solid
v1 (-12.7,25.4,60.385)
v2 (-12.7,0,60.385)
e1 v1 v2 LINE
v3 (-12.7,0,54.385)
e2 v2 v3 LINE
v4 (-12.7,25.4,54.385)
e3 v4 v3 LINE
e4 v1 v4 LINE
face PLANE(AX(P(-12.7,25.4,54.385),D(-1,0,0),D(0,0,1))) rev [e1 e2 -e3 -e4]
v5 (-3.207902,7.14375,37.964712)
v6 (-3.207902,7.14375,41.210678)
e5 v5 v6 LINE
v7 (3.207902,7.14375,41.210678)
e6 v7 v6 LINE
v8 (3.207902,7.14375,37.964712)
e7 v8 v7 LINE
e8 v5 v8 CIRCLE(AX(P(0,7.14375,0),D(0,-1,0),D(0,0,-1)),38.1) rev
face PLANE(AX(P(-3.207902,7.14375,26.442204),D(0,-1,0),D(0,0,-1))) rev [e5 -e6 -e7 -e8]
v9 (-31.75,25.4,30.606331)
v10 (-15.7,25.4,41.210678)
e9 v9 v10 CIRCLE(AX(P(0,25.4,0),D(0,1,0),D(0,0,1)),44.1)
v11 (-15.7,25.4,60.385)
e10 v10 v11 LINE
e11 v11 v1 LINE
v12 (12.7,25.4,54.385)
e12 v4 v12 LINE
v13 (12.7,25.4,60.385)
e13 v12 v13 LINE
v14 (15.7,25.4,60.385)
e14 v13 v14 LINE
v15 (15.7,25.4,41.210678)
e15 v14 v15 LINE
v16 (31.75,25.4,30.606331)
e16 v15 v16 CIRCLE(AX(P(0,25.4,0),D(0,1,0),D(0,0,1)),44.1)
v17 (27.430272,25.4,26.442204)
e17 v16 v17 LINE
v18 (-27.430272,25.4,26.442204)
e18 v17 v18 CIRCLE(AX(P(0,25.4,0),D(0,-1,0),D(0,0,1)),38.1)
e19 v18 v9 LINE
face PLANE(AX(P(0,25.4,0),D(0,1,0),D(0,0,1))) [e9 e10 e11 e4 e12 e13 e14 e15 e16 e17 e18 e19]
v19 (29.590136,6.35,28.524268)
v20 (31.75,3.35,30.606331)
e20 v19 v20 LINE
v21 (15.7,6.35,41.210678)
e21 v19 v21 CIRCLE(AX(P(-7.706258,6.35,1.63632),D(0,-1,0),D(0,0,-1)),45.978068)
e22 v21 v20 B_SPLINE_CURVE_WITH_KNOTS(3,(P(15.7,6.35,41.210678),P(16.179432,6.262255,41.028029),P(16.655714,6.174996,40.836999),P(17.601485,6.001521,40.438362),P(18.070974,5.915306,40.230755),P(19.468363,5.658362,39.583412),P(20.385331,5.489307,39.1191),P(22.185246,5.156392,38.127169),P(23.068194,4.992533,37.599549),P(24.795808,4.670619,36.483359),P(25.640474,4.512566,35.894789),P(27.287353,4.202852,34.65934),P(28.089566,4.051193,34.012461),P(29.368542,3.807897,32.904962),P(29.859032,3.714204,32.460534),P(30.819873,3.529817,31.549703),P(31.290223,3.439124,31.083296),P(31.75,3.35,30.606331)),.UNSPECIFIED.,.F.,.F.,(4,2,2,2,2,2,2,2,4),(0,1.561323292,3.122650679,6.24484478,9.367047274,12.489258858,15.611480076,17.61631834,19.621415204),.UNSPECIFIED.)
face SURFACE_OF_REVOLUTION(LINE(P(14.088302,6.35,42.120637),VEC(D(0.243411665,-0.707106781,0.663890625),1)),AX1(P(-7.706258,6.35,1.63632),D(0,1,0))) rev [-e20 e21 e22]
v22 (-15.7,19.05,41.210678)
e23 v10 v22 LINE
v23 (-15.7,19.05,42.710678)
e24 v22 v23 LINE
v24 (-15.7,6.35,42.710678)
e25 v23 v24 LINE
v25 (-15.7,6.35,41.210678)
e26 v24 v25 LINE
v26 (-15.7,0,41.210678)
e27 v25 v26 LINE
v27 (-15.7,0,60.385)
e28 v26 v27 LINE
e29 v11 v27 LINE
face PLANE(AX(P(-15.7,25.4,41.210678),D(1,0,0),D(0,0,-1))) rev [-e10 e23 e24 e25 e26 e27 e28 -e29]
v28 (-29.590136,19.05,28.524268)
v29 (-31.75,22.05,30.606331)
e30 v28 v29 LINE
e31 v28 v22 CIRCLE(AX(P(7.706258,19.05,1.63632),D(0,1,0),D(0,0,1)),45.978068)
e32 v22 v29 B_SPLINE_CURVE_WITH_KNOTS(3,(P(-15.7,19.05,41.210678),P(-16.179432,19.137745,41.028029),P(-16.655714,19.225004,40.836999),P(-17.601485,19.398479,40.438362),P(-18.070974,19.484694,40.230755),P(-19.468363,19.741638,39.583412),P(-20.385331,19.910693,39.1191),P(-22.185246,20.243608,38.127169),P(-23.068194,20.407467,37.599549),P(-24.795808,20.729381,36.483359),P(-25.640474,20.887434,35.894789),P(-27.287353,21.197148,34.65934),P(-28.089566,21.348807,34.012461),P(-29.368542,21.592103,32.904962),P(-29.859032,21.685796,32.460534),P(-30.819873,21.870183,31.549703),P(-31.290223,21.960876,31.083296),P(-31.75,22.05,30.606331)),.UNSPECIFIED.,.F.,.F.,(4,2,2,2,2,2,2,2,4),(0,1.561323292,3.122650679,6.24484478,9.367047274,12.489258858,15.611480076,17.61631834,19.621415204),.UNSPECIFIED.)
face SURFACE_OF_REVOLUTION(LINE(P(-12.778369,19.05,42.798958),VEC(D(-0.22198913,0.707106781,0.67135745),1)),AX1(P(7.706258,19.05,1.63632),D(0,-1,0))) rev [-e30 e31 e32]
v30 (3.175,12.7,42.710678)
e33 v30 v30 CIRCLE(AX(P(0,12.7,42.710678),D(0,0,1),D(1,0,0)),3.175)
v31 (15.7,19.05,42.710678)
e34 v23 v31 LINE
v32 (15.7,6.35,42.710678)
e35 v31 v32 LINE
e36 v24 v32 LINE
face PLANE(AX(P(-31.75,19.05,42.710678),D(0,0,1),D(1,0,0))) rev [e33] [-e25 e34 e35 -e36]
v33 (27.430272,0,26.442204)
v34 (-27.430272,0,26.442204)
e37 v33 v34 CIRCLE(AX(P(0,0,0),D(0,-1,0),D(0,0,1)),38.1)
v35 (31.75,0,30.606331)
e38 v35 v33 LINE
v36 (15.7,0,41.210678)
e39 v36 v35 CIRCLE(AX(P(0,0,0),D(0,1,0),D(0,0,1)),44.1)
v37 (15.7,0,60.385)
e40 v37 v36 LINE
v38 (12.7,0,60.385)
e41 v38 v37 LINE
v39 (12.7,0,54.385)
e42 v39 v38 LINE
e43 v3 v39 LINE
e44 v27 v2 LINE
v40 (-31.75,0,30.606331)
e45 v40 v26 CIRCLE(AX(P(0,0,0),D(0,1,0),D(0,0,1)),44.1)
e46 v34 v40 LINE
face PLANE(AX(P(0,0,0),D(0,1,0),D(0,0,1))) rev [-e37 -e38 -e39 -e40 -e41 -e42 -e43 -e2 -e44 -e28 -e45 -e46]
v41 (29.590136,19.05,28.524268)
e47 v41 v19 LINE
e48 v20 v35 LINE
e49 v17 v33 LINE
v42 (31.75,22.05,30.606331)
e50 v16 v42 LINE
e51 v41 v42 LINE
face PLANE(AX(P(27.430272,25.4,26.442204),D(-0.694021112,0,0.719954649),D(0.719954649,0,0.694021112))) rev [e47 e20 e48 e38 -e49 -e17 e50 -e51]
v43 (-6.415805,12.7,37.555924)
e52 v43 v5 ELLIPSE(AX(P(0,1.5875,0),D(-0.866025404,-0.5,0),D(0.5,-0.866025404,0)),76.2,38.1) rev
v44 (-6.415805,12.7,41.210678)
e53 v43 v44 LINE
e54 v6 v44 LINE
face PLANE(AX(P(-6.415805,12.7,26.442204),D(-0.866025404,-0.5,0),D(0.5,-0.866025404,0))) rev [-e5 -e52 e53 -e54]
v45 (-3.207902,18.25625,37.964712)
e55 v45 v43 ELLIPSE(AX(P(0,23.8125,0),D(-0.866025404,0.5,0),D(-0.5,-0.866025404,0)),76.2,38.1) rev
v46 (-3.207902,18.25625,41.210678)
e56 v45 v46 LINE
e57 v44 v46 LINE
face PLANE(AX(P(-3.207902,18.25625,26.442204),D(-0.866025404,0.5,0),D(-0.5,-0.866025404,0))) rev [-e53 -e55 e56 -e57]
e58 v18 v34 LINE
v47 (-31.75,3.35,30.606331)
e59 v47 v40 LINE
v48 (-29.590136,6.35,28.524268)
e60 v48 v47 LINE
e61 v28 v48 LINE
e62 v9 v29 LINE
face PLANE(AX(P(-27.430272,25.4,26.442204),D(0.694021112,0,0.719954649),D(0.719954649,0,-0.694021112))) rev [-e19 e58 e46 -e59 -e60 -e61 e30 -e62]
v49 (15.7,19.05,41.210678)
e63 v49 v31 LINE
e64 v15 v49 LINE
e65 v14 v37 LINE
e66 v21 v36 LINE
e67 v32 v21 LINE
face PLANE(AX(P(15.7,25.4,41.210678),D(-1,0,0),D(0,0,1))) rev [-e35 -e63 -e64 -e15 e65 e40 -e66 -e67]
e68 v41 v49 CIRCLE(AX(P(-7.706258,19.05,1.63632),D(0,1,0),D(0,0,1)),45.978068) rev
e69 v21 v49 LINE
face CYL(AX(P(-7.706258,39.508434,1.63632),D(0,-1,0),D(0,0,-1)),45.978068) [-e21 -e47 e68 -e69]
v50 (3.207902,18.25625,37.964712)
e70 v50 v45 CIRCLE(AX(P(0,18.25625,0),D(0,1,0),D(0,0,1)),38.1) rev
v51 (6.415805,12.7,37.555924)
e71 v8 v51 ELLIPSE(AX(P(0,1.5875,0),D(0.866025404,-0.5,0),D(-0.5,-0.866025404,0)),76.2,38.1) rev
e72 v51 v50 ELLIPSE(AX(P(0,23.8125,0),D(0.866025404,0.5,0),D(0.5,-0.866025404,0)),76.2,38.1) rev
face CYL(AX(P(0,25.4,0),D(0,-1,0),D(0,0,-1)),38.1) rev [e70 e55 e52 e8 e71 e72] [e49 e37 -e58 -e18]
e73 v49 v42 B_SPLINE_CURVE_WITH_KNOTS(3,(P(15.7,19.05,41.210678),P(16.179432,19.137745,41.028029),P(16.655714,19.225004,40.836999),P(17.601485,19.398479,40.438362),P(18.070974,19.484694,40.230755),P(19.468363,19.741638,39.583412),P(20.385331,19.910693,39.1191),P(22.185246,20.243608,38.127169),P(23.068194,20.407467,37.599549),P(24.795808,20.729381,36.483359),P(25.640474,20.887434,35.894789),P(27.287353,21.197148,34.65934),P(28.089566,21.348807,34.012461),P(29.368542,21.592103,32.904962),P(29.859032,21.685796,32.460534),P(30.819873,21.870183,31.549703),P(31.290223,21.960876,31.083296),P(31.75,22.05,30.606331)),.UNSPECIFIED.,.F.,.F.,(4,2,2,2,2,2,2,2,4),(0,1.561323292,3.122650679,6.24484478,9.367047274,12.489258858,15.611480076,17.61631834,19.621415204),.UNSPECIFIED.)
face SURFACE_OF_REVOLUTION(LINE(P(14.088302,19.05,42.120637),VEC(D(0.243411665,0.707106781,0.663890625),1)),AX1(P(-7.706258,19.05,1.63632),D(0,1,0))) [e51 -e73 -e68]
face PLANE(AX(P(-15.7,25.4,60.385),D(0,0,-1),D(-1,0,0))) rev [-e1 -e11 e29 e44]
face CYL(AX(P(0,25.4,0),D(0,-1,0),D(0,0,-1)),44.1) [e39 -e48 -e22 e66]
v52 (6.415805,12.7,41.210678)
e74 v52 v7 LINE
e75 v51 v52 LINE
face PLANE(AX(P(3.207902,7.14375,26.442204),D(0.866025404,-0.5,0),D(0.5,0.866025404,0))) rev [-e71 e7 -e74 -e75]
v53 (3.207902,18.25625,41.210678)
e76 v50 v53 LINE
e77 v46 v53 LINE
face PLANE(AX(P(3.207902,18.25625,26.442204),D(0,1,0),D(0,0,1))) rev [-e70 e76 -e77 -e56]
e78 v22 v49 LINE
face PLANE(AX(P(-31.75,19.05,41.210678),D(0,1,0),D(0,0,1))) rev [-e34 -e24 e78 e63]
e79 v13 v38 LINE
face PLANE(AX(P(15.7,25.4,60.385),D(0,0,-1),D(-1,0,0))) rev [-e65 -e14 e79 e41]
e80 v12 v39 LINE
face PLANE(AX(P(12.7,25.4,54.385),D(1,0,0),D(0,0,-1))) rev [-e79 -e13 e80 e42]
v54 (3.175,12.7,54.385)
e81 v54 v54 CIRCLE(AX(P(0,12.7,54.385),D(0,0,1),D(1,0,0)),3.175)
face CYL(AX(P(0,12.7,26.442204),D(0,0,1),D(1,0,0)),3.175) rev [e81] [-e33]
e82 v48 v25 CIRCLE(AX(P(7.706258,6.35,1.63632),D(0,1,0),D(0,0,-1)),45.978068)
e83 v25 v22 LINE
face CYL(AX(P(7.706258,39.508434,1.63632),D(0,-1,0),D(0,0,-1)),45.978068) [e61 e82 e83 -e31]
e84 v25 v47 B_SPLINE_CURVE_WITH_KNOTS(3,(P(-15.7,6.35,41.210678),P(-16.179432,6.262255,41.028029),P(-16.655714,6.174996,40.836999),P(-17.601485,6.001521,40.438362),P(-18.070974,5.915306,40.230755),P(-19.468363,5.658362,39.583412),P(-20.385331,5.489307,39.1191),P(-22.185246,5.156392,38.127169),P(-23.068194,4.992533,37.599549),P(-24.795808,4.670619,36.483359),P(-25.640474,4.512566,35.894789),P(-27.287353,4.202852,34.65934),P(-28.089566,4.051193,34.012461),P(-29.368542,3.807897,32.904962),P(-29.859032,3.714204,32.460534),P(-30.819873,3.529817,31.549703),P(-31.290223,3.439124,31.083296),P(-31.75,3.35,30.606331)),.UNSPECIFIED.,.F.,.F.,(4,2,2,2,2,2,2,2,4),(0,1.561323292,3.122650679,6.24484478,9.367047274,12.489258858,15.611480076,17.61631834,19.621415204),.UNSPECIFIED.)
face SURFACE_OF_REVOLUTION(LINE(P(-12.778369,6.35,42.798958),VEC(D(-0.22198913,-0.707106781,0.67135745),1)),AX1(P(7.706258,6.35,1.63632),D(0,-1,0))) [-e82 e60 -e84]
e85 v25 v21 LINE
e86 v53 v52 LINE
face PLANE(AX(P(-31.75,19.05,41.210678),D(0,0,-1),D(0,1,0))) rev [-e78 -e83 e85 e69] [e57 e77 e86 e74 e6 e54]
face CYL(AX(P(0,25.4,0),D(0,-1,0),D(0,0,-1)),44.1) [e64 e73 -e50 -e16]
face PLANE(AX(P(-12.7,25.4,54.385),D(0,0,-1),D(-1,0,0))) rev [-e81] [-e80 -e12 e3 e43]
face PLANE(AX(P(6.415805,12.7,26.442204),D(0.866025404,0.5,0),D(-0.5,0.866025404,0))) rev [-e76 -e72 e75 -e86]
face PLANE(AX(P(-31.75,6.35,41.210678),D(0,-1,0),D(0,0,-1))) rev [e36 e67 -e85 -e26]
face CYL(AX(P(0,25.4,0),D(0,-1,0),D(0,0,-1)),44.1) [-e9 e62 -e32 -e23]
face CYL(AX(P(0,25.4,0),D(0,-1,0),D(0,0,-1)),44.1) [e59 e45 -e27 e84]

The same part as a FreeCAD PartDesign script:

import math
import FreeCAD as App
import Part
import Sketcher

V = App.Vector
Q = App.Units.Quantity

doc = App.newDocument("Part")
body = doc.addObject("PartDesign::Body", "Body")

# Sketch on XZ plane
sketch1 = doc.addObject("Sketcher::SketchObject", "Sketch")
body.addObject(sketch1)
sketch1.AttachmentSupport = (doc.XZ_Plane, [""])
sketch1.MapMode = "FlatFace"
sketch1.addGeometry([
    Part.LineSegment(V(-12.7, 54.4, 0), V(12.7, 54.4, 0)),  # 0
    Part.LineSegment(V(12.7, 54.4, 0), V(12.7, 60.4, 0)),  # 1
    Part.LineSegment(V(12.7, 60.4, 0), V(15.7, 60.4, 0)),  # 2
    Part.LineSegment(V(15.7, 60.4, 0), V(15.7, 41.2, 0)),  # 3
    Part.ArcOfCircle(Part.Circle(V(0, 0, 0), V(0, 0, 1), 44.1), math.radians(44), math.radians(69)),  # 4
    Part.LineSegment(V(31.8, 30.6, 0), V(27.4, 26.4, 0)),  # 5
    Part.ArcOfCircle(Part.Circle(V(0, 0, 0), V(0, 0, 1), 38.1), math.radians(44), math.radians(136)),  # 6
    Part.LineSegment(V(-27.4, 26.4, 0), V(-31.8, 30.6, 0)),  # 7
    Part.ArcOfCircle(Part.Circle(V(0, 0, 0), V(0, 0, 1), 44.1), math.radians(111), math.radians(136)),  # 8
    Part.LineSegment(V(-15.7, 41.2, 0), V(-15.7, 60.4, 0)),  # 9
    Part.LineSegment(V(-15.7, 60.4, 0), V(-12.7, 60.4, 0)),  # 10
    Part.LineSegment(V(-12.7, 60.4, 0), V(-12.7, 54.4, 0)),  # 11
], False)
sketch1.addConstraint([
    Sketcher.Constraint("Coincident", 0, 2, 1, 1),
    Sketcher.Constraint("Coincident", 1, 2, 2, 1),
    Sketcher.Constraint("Coincident", 2, 2, 3, 1),
    Sketcher.Constraint("Coincident", 3, 2, 4, 2),
    Sketcher.Constraint("Coincident", 4, 1, 5, 1),
    Sketcher.Constraint("Coincident", 5, 2, 6, 1),
    Sketcher.Constraint("Coincident", 6, 2, 7, 1),
    Sketcher.Constraint("Coincident", 7, 2, 8, 2),
    Sketcher.Constraint("Coincident", 8, 1, 9, 1),
    Sketcher.Constraint("Coincident", 9, 2, 10, 1),
    Sketcher.Constraint("Coincident", 10, 2, 11, 1),
    Sketcher.Constraint("Coincident", 11, 2, 0, 1),
    Sketcher.Constraint("Horizontal", 0),
    Sketcher.Constraint("Vertical", 1),
    Sketcher.Constraint("Horizontal", 2),
    Sketcher.Constraint("Vertical", 3),
    Sketcher.Constraint("Vertical", 9),
    Sketcher.Constraint("Horizontal", 10),
    Sketcher.Constraint("Vertical", 11),
    Sketcher.Constraint("Coincident", 4, 3, -1, 1),
    Sketcher.Constraint("Coincident", 6, 3, -1, 1),
    Sketcher.Constraint("Coincident", 8, 3, -1, 1),
    Sketcher.Constraint("Equal", 4, 8),
    Sketcher.Constraint("Symmetric", 2, 2, 9, 2, -2),
    Sketcher.Constraint("Horizontal", 5, 2, 6, 2),
    Sketcher.Constraint("Horizontal", 4, 1, 7, 2),
    Sketcher.Constraint("Equal", 2, 10),
    Sketcher.Constraint("Radius", 6, Q("1.5 in")),
    Sketcher.Constraint("DistanceX", 0, 1, 0, 2, Q("1 in")),
    Sketcher.Constraint("DistanceX", -1, 1, 4, 1, Q("1.25 in")),
    Sketcher.Constraint("Radius", 4, Q("44.1 mm")),
    Sketcher.Constraint("DistanceX", 2, 1, 2, 2, Q("3 mm")),
    Sketcher.Constraint("DistanceY", 1, 1, 1, 2, Q("6 mm")),
    Sketcher.Constraint("DistanceY", 3, 2, 3, 1, Q("19.174322 mm")),
    Sketcher.Constraint("DistanceX", -1, 1, 5, 2, Q("27.430272 mm")),
])
pad1 = doc.addObject("PartDesign::Pad", "Pad")
body.addObject(pad1)
pad1.Profile = sketch1
pad1.Length = Q("1 in")
pad1.Reversed = True

# Sketch on YZ plane
sketch2 = doc.addObject("Sketcher::SketchObject", "Sketch001")
body.addObject(sketch2)
sketch2.AttachmentSupport = (doc.YZ_Plane, [""])
sketch2.MapMode = "FlatFace"
sketch2.AttachmentOffset = App.Placement(V(0, 0, 15.7), App.Rotation())
sketch2.addGeometry([
    Part.LineSegment(V(19.1, 42.7, 0), V(6.3, 42.7, 0)),
    Part.LineSegment(V(6.3, 42.7, 0), V(6.3, 41.2, 0)),
    Part.LineSegment(V(6.3, 41.2, 0), V(19.1, 41.2, 0)),
    Part.LineSegment(V(19.1, 41.2, 0), V(19.1, 42.7, 0)),
], False)
sketch2.addConstraint([
    Sketcher.Constraint("Coincident", 0, 2, 1, 1),
    Sketcher.Constraint("Coincident", 1, 2, 2, 1),
    Sketcher.Constraint("Coincident", 2, 2, 3, 1),
    Sketcher.Constraint("Coincident", 3, 2, 0, 1),
    Sketcher.Constraint("Horizontal", 0),
    Sketcher.Constraint("Vertical", 1),
    Sketcher.Constraint("Horizontal", 2),
    Sketcher.Constraint("Vertical", 3),
    Sketcher.Constraint("DistanceX", 0, 2, 0, 1, Q("0.5 in")),
    Sketcher.Constraint("DistanceX", -1, 1, 0, 2, Q("0.25 in")),
    Sketcher.Constraint("DistanceY", 1, 2, 1, 1, Q("1.5 mm")),
    Sketcher.Constraint("DistanceY", -1, 1, 0, 2, Q("42.710678 mm")),
])
pocket1 = doc.addObject("PartDesign::Pocket", "Pocket")
body.addObject(pocket1)
pocket1.Profile = sketch2
pocket1.Type = "ThroughAll"

# Sketch on XZ plane
sketch3 = doc.addObject("Sketcher::SketchObject", "Sketch002")
body.addObject(sketch3)
sketch3.AttachmentSupport = (doc.XZ_Plane, [""])
sketch3.MapMode = "FlatFace"
sketch3.AttachmentOffset = App.Placement(V(0, 0, -0.25 * 25.4), App.Rotation())
sketch3.addGeometry([
    Part.LineSegment(V(31.8, 30.6, 0), V(29.6, 28.5, 0)),
    Part.ArcOfCircle(Part.Circle(V(-7.7, 1.6, 0), V(0, 0, 1), 46), math.radians(36), math.radians(59)),
    Part.ArcOfCircle(Part.Circle(V(0, 0, 0), V(0, 0, 1), 44.1), math.radians(44), math.radians(69)),
], False)
sketch3.addConstraint([
    Sketcher.Constraint("Coincident", 0, 2, 1, 1),
    Sketcher.Constraint("Coincident", 1, 2, 2, 2),
    Sketcher.Constraint("Coincident", 2, 1, 0, 1),
    Sketcher.Constraint("Coincident", 2, 3, -1, 1),
    Sketcher.Constraint("DistanceX", -1, 1, 2, 1, Q("1.25 in")),
    Sketcher.Constraint("Radius", 2, Q("44.1 mm")),
    Sketcher.Constraint("Radius", 1, Q("45.978068 mm")),
    Sketcher.Constraint("Distance", 0, Q("3 mm")),
    Sketcher.Constraint("DistanceX", -1, 1, 1, 2, Q("15.7 mm")),
    Sketcher.Constraint("DistanceY", -1, 1, 1, 3, Q("1.63632 mm")),
])
pocket2 = doc.addObject("PartDesign::Pocket", "Pocket001")
body.addObject(pocket2)
pocket2.Profile = sketch3
pocket2.Length = Q("0.5 in")
doc.recompute()

mirrored = doc.addObject("PartDesign::Mirrored", "Mirrored")
body.addObject(mirrored)
mirrored.Originals = [pocket2]
mirrored.MirrorPlane = (doc.YZ_Plane, [""])
body.Tip = mirrored

# Sketch on XY plane
sketch4 = doc.addObject("Sketcher::SketchObject", "Sketch003")
body.addObject(sketch4)
sketch4.AttachmentSupport = (doc.XY_Plane, [""])
sketch4.MapMode = "FlatFace"
sketch4.AttachmentOffset = App.Placement(V(0, 0, 54.385), App.Rotation())
sketch4.addGeometry(Part.Circle(V(0, 12.7, 0), V(0, 0, 1), 3.2), False)
sketch4.addConstraint([
    Sketcher.Constraint("PointOnObject", 0, 3, -2),
    Sketcher.Constraint("Diameter", 0, Q("0.25 in")),
    Sketcher.Constraint("DistanceY", -1, 1, 0, 3, Q("0.5 in")),
])
pocket3 = doc.addObject("PartDesign::Pocket", "Pocket002")
body.addObject(pocket3)
pocket3.Profile = sketch4
pocket3.Type = "ThroughAll"

# Sketch on XY plane
sketch5 = doc.addObject("Sketcher::SketchObject", "Sketch004")
body.addObject(sketch5)
sketch5.AttachmentSupport = (doc.XY_Plane, [""])
sketch5.MapMode = "FlatFace"
sketch5.AttachmentOffset = App.Placement(V(0, 0, 1.5 * 25.4), App.Rotation())
sketch5.addGeometry([
    Part.LineSegment(V(6, 13, 0), V(3, 18, 0)),  # 0
    Part.LineSegment(V(3, 18, 0), V(-3, 18, 0)),  # 1
    Part.LineSegment(V(-3, 18, 0), V(-6, 13, 0)),  # 2
    Part.LineSegment(V(-6, 13, 0), V(-3, 7, 0)),  # 3
    Part.LineSegment(V(-3, 7, 0), V(3, 7, 0)),  # 4
    Part.LineSegment(V(3, 7, 0), V(6, 13, 0)),  # 5
], False)
sketch5.addConstraint([
    Sketcher.Constraint("Coincident", 0, 2, 1, 1),
    Sketcher.Constraint("Coincident", 1, 2, 2, 1),
    Sketcher.Constraint("Coincident", 2, 2, 3, 1),
    Sketcher.Constraint("Coincident", 3, 2, 4, 1),
    Sketcher.Constraint("Coincident", 4, 2, 5, 1),
    Sketcher.Constraint("Coincident", 5, 2, 0, 1),
    Sketcher.Constraint("Horizontal", 1),
    Sketcher.Constraint("Horizontal", 4),
    Sketcher.Constraint("Symmetric", 2, 2, 5, 2, -2),
    Sketcher.Constraint("Parallel", 0, 3),
    Sketcher.Constraint("Parallel", 2, 5),
    Sketcher.Constraint("Vertical", 1, 2, 3, 2),
    Sketcher.Constraint("Vertical", 0, 2, 4, 2),
    Sketcher.Constraint("Angle", 0, Q("120 deg")),
    Sketcher.Constraint("DistanceY", -1, 1, 2, 2, Q("0.5 in")),
    Sketcher.Constraint("DistanceY", -1, 1, 0, 2, Q("0.71875 in")),
    Sketcher.Constraint("DistanceX", 1, 2, 1, 1, Q("6.415805 mm")),
])
pocket4 = doc.addObject("PartDesign::Pocket", "Pocket003")
body.addObject(pocket4)
pocket4.Profile = sketch5
pocket4.Type = "TwoLengths"
pocket4.Length = Q("0.171875 in")
pocket4.Length2 = 47.366407
pocket4.Reversed = True

# Sketch on an angled plane
sketch6 = doc.addObject("Sketcher::SketchObject", "Sketch005")
body.addObject(sketch6)
sketch6.Placement = App.Placement(V(0, 0, 0), App.Rotation(V(-0.719954649, 0, -0.694021112), V(0, 1.000000001, 0), V(0.694021112, 0, -0.719954649), "ZXY"))
sketch6.addGeometry([
    Part.LineSegment(V(-44.1, 19.1, 0), V(-41.1, 19.1, 0)),
    Part.LineSegment(V(-41.1, 19.1, 0), V(-44.1, 22.1, 0)),
    Part.LineSegment(V(-44.1, 22.1, 0), V(-44.1, 19.1, 0)),
], False)
sketch6.addConstraint([
    Sketcher.Constraint("Coincident", 0, 2, 1, 1),
    Sketcher.Constraint("Coincident", 1, 2, 2, 1),
    Sketcher.Constraint("Coincident", 2, 2, 0, 1),
    Sketcher.Constraint("Horizontal", 0),
    Sketcher.Constraint("Vertical", 2),
    Sketcher.Constraint("Equal", 0, 2),
    Sketcher.Constraint("DistanceY", -1, 1, 0, 2, Q("0.75 in")),
    Sketcher.Constraint("DistanceX", 0, 1, 0, 2, Q("3 mm")),
    Sketcher.Constraint("DistanceX", 0, 2, -1, 1, Q("41.1 mm")),
])

# Sketch on XZ plane
sketch7 = doc.addObject("Sketcher::SketchObject", "Sketch006")
body.addObject(sketch7)
sketch7.AttachmentSupport = (doc.XZ_Plane, [""])
sketch7.MapMode = "FlatFace"
sketch7.AttachmentOffset = App.Placement(V(0, 0, -0.75 * 25.4), App.Rotation())
sketch7.addGeometry(Part.ArcOfCircle(Part.Circle(V(-8, 2, 0), V(0, 0, 1), 46), math.radians(36), math.radians(59)), False)
sketch7.addConstraint([
    Sketcher.Constraint("Radius", 0, Q("45.978068 mm")),
    Sketcher.Constraint("DistanceX", -1, 1, 0, 2, Q("15.7 mm")),
    Sketcher.Constraint("DistanceY", -1, 1, 0, 3, Q("1.63632 mm")),
    Sketcher.Constraint("DistanceY", -1, 1, 0, 2, Q("41.210678 mm")),
    Sketcher.Constraint("DistanceY", 0, 1, 0, 2, Q("12.686411 mm")),
])
doc.recompute()

subtractivepipe = doc.addObject("PartDesign::SubtractivePipe", "SubtractivePipe")
body.addObject(subtractivepipe)
subtractivepipe.Profile = sketch6
subtractivepipe.Spine = (sketch7, ["Edge1"])
doc.recompute()

datumplane = doc.addObject("PartDesign::Plane", "DatumPlane")
body.addObject(datumplane)
datumplane.AttachmentSupport = (doc.XZ_Plane, [""])
datumplane.MapMode = "FlatFace"
datumplane.AttachmentOffset = App.Placement(V(0, 0, -0.5 * 25.4), App.Rotation())
mirrored2 = doc.addObject("PartDesign::Mirrored", "Mirrored001")
body.addObject(mirrored2)
mirrored2.Originals = [subtractivepipe]
mirrored2.MirrorPlane = (datumplane, [""])
body.Tip = mirrored2
doc.recompute()

mirrored3 = doc.addObject("PartDesign::Mirrored", "Mirrored002")
body.addObject(mirrored3)
mirrored3.Originals = [subtractivepipe]
mirrored3.MirrorPlane = (doc.YZ_Plane, [""])
body.Tip = mirrored3

# Sketch on an angled plane
sketch8 = doc.addObject("Sketcher::SketchObject", "Sketch007")
body.addObject(sketch8)
sketch8.Placement = App.Placement(V(0, 25.4, 0), App.Rotation(V(0.719954649, 0, -0.694021112), V(0, -1.000000001, 0), V(-0.694021112, 0, -0.719954649), "ZXY"))
sketch8.addGeometry([
    Part.LineSegment(V(-44.1, 19.1, 0), V(-41.1, 19.1, 0)),
    Part.LineSegment(V(-41.1, 19.1, 0), V(-44.1, 22.1, 0)),
    Part.LineSegment(V(-44.1, 22.1, 0), V(-44.1, 19.1, 0)),
], False)
sketch8.addConstraint([
    Sketcher.Constraint("Coincident", 0, 2, 1, 1),
    Sketcher.Constraint("Coincident", 1, 2, 2, 1),
    Sketcher.Constraint("Coincident", 2, 2, 0, 1),
    Sketcher.Constraint("Horizontal", 0),
    Sketcher.Constraint("Vertical", 2),
    Sketcher.Constraint("Equal", 0, 2),
    Sketcher.Constraint("DistanceY", -1, 1, 0, 2, Q("0.75 in")),
    Sketcher.Constraint("DistanceX", 0, 1, 0, 2, Q("3 mm")),
    Sketcher.Constraint("DistanceX", 0, 2, -1, 1, Q("41.1 mm")),
])

# Sketch on XZ plane
sketch9 = doc.addObject("Sketcher::SketchObject", "Sketch008")
body.addObject(sketch9)
sketch9.AttachmentSupport = (doc.XZ_Plane, [""])
sketch9.MapMode = "FlatFace"
sketch9.AttachmentOffset = App.Placement(V(0, 0, -0.25 * 25.4), App.Rotation())
sketch9.addGeometry(Part.ArcOfCircle(Part.Circle(V(8, 2, 0), V(0, 0, 1), 46), math.radians(121), math.radians(144)), False)
sketch9.addConstraint([
    Sketcher.Constraint("Radius", 0, Q("45.978068 mm")),
    Sketcher.Constraint("DistanceX", 0, 1, -1, 1, Q("15.7 mm")),
    Sketcher.Constraint("DistanceY", -1, 1, 0, 3, Q("1.63632 mm")),
    Sketcher.Constraint("DistanceY", -1, 1, 0, 1, Q("41.210678 mm")),
    Sketcher.Constraint("DistanceY", 0, 2, 0, 1, Q("12.686411 mm")),
])
doc.recompute()

subtractivepipe2 = doc.addObject("PartDesign::SubtractivePipe", "SubtractivePipe001")
body.addObject(subtractivepipe2)
subtractivepipe2.Profile = sketch8
subtractivepipe2.Spine = (sketch9, ["Edge1"])

doc.recompute()
